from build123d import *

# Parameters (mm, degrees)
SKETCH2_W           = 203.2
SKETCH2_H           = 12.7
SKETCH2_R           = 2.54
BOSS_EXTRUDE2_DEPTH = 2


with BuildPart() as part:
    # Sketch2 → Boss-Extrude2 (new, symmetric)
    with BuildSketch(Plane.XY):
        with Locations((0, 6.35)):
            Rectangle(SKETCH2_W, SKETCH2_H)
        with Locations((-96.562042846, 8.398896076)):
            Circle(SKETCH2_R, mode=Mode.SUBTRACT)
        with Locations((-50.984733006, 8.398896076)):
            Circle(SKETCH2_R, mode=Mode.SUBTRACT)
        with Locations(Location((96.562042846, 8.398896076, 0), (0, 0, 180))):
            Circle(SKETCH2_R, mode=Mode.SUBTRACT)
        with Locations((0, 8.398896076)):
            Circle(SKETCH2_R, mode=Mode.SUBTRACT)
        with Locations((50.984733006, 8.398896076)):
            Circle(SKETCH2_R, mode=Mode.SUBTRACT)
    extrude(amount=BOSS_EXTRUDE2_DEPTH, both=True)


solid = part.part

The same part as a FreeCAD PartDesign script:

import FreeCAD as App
import Part
import Sketcher
Q = App.Units.Quantity


def add_polygon(sketch, points):
    """Adds a closed chain of lines whose ends are joined by coincident constraints."""
    first, n = sketch.GeometryCount, len(points)
    for a, b in zip(points, points[1:] + points[:1]):
        sketch.addGeometry(Part.LineSegment(App.Vector(*a, 0), App.Vector(*b, 0)), False)
    for i in range(n):
        sketch.addConstraint(Sketcher.Constraint("Coincident", first + i, 2, first + (i + 1) % n, 1))

doc = App.newDocument("Part")
body = doc.addObject("PartDesign::Body", "Body")

# Sketch on XY plane
sketch1 = body.newObject("Sketcher::SketchObject", "Sketch")
sketch1.AttachmentSupport = (doc.getObject("XY_Plane"), [""])
sketch1.MapMode = "FlatFace"
add_polygon(sketch1, [(-101.6, 12.7), (-101.6, 0), (101.6, 0), (101.6, 12.7)])  # lines 0-3
sketch1.addGeometry(Part.Circle(App.Vector(-96.6, 8.4, 0), App.Vector(0, 0, 1), 2.5), False)  # 4
sketch1.addGeometry(Part.Circle(App.Vector(-51, 8.4, 0), App.Vector(0, 0, 1), 2.5), False)  # 5
sketch1.addGeometry(Part.Circle(App.Vector(0, 8.4, 0), App.Vector(0, 0, 1), 2.5), False)  # 6
sketch1.addGeometry(Part.Circle(App.Vector(51, 8.4, 0), App.Vector(0, 0, 1), 2.5), False)  # 7
sketch1.addGeometry(Part.Circle(App.Vector(96.6, 8.4, 0), App.Vector(0, 0, 1), 2.5), False)  # 8
sketch1.addConstraint(Sketcher.Constraint("Vertical", 0))
sketch1.addConstraint(Sketcher.Constraint("Horizontal", 1))
sketch1.addConstraint(Sketcher.Constraint("Vertical", 2))
sketch1.addConstraint(Sketcher.Constraint("Horizontal", 3))
sketch1.addConstraint(Sketcher.Constraint("Equal", 4, 5))
sketch1.addConstraint(Sketcher.Constraint("Equal", 5, 6))
sketch1.addConstraint(Sketcher.Constraint("Equal", 6, 7))
sketch1.addConstraint(Sketcher.Constraint("Equal", 7, 8))
sketch1.addConstraint(Sketcher.Constraint("Symmetric", 0, 2, 1, 2, -1, 1))
sketch1.addConstraint(Sketcher.Constraint("Symmetric", 5, 3, 7, 3, -2))
sketch1.addConstraint(Sketcher.Constraint("Symmetric", 4, 3, 8, 3, -2))
sketch1.addConstraint(Sketcher.Constraint("PointOnObject", 6, 3, -2))
sketch1.addConstraint(Sketcher.Constraint("Horizontal", 4, 3, 5, 3))
sketch1.addConstraint(Sketcher.Constraint("Horizontal", 5, 3, 6, 3))
sketch1.addConstraint(Sketcher.Constraint("Diameter", 4, Q("0.2 in")))
sketch1.addConstraint(Sketcher.Constraint("DistanceX", 1, 1, 1, 2, Q("8 in")))
sketch1.addConstraint(Sketcher.Constraint("DistanceY", 0, 2, 0, 1, Q("0.5 in")))
sketch1.addConstraint(Sketcher.Constraint("DistanceX", 4, 3, 5, 3, Q("45.57731 mm")))
sketch1.addConstraint(Sketcher.Constraint("DistanceX", 4, 3, -1, 1, Q("96.562043 mm")))
sketch1.addConstraint(Sketcher.Constraint("DistanceY", -1, 1, 4, 3, Q("8.398896 mm")))
pad1 = body.newObject("PartDesign::Pad", "Pad")
pad1.Profile = sketch1
pad1.Length = 4
pad1.Midplane = True

doc.recompute()
